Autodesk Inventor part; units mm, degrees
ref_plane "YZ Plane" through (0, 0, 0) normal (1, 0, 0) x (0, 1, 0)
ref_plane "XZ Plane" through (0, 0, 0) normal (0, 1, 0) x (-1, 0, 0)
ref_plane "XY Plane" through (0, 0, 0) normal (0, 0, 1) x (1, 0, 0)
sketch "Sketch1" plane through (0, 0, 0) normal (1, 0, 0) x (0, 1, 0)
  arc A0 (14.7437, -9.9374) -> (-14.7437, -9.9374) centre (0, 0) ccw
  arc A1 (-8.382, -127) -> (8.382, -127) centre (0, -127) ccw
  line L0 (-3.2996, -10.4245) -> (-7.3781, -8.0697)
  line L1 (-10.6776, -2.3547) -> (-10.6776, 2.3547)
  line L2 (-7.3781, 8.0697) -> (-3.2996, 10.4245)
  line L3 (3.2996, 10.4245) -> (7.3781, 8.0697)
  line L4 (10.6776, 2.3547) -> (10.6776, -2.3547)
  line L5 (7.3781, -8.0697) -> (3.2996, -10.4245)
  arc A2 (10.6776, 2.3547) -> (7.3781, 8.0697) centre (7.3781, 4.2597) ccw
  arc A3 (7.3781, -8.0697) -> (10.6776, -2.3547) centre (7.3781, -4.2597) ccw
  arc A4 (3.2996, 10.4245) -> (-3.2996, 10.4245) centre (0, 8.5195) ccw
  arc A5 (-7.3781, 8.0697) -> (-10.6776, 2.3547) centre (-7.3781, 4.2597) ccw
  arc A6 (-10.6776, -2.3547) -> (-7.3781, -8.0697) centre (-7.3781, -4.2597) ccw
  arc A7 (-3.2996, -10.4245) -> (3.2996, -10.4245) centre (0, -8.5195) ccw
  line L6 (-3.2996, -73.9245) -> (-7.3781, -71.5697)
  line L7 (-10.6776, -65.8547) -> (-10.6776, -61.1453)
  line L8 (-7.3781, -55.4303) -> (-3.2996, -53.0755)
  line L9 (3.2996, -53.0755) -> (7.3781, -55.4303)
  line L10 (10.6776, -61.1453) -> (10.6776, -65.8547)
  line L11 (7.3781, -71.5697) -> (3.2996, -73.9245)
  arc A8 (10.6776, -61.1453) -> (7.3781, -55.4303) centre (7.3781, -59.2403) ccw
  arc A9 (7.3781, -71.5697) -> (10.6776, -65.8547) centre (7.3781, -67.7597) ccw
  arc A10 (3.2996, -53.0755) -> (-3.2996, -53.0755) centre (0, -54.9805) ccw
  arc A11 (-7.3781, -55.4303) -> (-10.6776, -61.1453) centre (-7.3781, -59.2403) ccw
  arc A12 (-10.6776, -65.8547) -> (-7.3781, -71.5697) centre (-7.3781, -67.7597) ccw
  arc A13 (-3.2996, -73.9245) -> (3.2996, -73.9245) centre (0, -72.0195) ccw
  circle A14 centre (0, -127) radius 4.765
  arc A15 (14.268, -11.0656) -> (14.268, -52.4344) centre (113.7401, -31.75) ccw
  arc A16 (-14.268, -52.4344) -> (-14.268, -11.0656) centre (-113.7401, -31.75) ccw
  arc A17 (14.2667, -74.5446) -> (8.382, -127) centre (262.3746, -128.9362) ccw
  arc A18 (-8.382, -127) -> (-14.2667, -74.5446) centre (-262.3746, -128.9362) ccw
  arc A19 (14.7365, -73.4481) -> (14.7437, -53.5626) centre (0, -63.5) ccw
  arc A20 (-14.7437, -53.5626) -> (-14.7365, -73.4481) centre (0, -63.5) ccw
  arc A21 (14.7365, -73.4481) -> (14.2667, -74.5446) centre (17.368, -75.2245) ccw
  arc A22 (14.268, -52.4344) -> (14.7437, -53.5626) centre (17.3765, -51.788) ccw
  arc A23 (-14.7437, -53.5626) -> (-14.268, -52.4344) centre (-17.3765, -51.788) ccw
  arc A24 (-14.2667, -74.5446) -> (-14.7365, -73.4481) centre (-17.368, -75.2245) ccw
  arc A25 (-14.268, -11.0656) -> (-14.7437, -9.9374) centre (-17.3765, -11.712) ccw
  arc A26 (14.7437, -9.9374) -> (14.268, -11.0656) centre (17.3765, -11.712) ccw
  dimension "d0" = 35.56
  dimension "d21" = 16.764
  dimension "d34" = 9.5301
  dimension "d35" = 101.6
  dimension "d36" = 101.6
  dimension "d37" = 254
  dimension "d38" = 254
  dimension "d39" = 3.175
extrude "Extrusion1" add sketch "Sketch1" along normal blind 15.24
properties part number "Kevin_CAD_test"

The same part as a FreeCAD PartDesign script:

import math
import FreeCAD as App
import Part
import Sketcher
Q = App.Units.Quantity

doc = App.newDocument("Part")
body = doc.addObject("PartDesign::Body", "Body")

sketch1 = body.newObject("Sketcher::SketchObject", "Sketch")
sketch1.AttachmentSupport = (doc.getObject("YZ_Plane"), [""])
sketch1.MapMode = "FlatFace"
sketch1.addGeometry(Part.ArcOfCircle(Part.Circle(App.Vector(17.4, -11.7, 0), App.Vector(0, 0, 1), 3.2), math.radians(146), math.radians(168)), False)
sketch1.addGeometry(Part.ArcOfCircle(Part.Circle(App.Vector(0, 0, 0), App.Vector(0, 0, 1), 17.8), math.radians(-34), math.radians(214)), False)
sketch1.addGeometry(Part.ArcOfCircle(Part.Circle(App.Vector(-17.4, -11.7, 0), App.Vector(0, 0, 1), 3.2), math.radians(12), math.radians(34)), False)
sketch1.addGeometry(Part.ArcOfCircle(Part.Circle(App.Vector(-113.7, -31.8, 0), App.Vector(0, 0, 1), 101.6), math.radians(-12), math.radians(12)), False)
sketch1.addGeometry(Part.ArcOfCircle(Part.Circle(App.Vector(-17.4, -51.8, 0), App.Vector(0, 0, 1), 3.2), math.radians(-34), math.radians(-12)), False)
sketch1.addGeometry(Part.ArcOfCircle(Part.Circle(App.Vector(0, -63.5, 0), App.Vector(0, 0, 1), 17.8), math.radians(146), math.radians(214)), False)
sketch1.addGeometry(Part.ArcOfCircle(Part.Circle(App.Vector(-17.4, -75.2, 0), App.Vector(0, 0, 1), 3.2), math.radians(12), math.radians(34)), False)
sketch1.addGeometry(Part.ArcOfCircle(Part.Circle(App.Vector(-262.4, -128.9, 0), App.Vector(0, 0, 1), 254), math.radians(0.44), math.radians(12.37)), False)
sketch1.addGeometry(Part.ArcOfCircle(Part.Circle(App.Vector(0, -127, 0), App.Vector(0, 0, 1), 8.4), math.radians(180), math.radians(360)), False)
sketch1.addGeometry(Part.ArcOfCircle(Part.Circle(App.Vector(262.4, -128.9, 0), App.Vector(0, 0, 1), 254), math.radians(167.63), math.radians(179.56)), False)
sketch1.addGeometry(Part.ArcOfCircle(Part.Circle(App.Vector(17.4, -75.2, 0), App.Vector(0, 0, 1), 3.2), math.radians(146), math.radians(168)), False)
sketch1.addGeometry(Part.ArcOfCircle(Part.Circle(App.Vector(0, -63.5, 0), App.Vector(0, 0, 1), 17.8), math.radians(-34), math.radians(34)), False)
sketch1.addGeometry(Part.ArcOfCircle(Part.Circle(App.Vector(17.4, -51.8, 0), App.Vector(0, 0, 1), 3.2), math.radians(-168), math.radians(-146)), False)
sketch1.addGeometry(Part.ArcOfCircle(Part.Circle(App.Vector(113.7, -31.8, 0), App.Vector(0, 0, 1), 101.6), math.radians(168), math.radians(192)), False)
sketch1.addGeometry(Part.Circle(App.Vector(0, -127, 0), App.Vector(0, 0, 1), 4.8), False)
sketch1.addGeometry(Part.ArcOfCircle(Part.Circle(App.Vector(0, -72, 0), App.Vector(0, 0, 1), 3.8), math.radians(-150), math.radians(-30)), False)
sketch1.addGeometry(Part.LineSegment(App.Vector(-3.3, -73.9, 0), App.Vector(-7.4, -71.6, 0)), False)
sketch1.addGeometry(Part.ArcOfCircle(Part.Circle(App.Vector(-7.4, -67.8, 0), App.Vector(0, 0, 1), 3.8), math.radians(150), math.radians(270)), False)
sketch1.addGeometry(Part.LineSegment(App.Vector(-10.7, -65.9, 0), App.Vector(-10.7, -61.1, 0)), False)
sketch1.addGeometry(Part.ArcOfCircle(Part.Circle(App.Vector(-7.4, -59.2, 0), App.Vector(0, 0, 1), 3.8), math.radians(90), math.radians(210)), False)
sketch1.addGeometry(Part.LineSegment(App.Vector(-7.4, -55.4, 0), App.Vector(-3.3, -53.1, 0)), False)
sketch1.addGeometry(Part.ArcOfCircle(Part.Circle(App.Vector(0, -55, 0), App.Vector(0, 0, 1), 3.8), math.radians(30), math.radians(150)), False)
sketch1.addGeometry(Part.LineSegment(App.Vector(3.3, -53.1, 0), App.Vector(7.4, -55.4, 0)), False)
sketch1.addGeometry(Part.ArcOfCircle(Part.Circle(App.Vector(7.4, -59.2, 0), App.Vector(0, 0, 1), 3.8), math.radians(-30), math.radians(90)), False)
sketch1.addGeometry(Part.LineSegment(App.Vector(10.7, -61.1, 0), App.Vector(10.7, -65.9, 0)), False)
sketch1.addGeometry(Part.ArcOfCircle(Part.Circle(App.Vector(7.4, -67.8, 0), App.Vector(0, 0, 1), 3.8), math.radians(-90), math.radians(30)), False)
sketch1.addGeometry(Part.LineSegment(App.Vector(7.4, -71.6, 0), App.Vector(3.3, -73.9, 0)), False)
sketch1.addGeometry(Part.ArcOfCircle(Part.Circle(App.Vector(0, -8.5, 0), App.Vector(0, 0, 1), 3.8), math.radians(-150), math.radians(-30)), False)
sketch1.addGeometry(Part.LineSegment(App.Vector(-3.3, -10.4, 0), App.Vector(-7.4, -8.1, 0)), False)
sketch1.addGeometry(Part.ArcOfCircle(Part.Circle(App.Vector(-7.4, -4.3, 0), App.Vector(0, 0, 1), 3.8), math.radians(150), math.radians(270)), False)
sketch1.addGeometry(Part.LineSegment(App.Vector(-10.7, -2.4, 0), App.Vector(-10.7, 2.4, 0)), False)
sketch1.addGeometry(Part.ArcOfCircle(Part.Circle(App.Vector(-7.4, 4.3, 0), App.Vector(0, 0, 1), 3.8), math.radians(90), math.radians(210)), False)
sketch1.addGeometry(Part.LineSegment(App.Vector(-7.4, 8.1, 0), App.Vector(-3.3, 10.4, 0)), False)
sketch1.addGeometry(Part.ArcOfCircle(Part.Circle(App.Vector(0, 8.5, 0), App.Vector(0, 0, 1), 3.8), math.radians(30), math.radians(150)), False)
sketch1.addGeometry(Part.LineSegment(App.Vector(3.3, 10.4, 0), App.Vector(7.4, 8.1, 0)), False)
sketch1.addGeometry(Part.ArcOfCircle(Part.Circle(App.Vector(7.4, 4.3, 0), App.Vector(0, 0, 1), 3.8), math.radians(-30), math.radians(90)), False)
sketch1.addGeometry(Part.LineSegment(App.Vector(10.7, 2.4, 0), App.Vector(10.7, -2.4, 0)), False)
sketch1.addGeometry(Part.ArcOfCircle(Part.Circle(App.Vector(7.4, -4.3, 0), App.Vector(0, 0, 1), 3.8), math.radians(-90), math.radians(30)), False)
sketch1.addGeometry(Part.LineSegment(App.Vector(7.4, -8.1, 0), App.Vector(3.3, -10.4, 0)), False)
sketch1.addConstraint(Sketcher.Constraint("Tangent", 0, 1, 1, 1))
sketch1.addConstraint(Sketcher.Constraint("Tangent", 1, 2, 2, 2))
sketch1.addConstraint(Sketcher.Constraint("Tangent", 2, 1, 3, 2))
sketch1.addConstraint(Sketcher.Constraint("Tangent", 3, 1, 4, 2))
sketch1.addConstraint(Sketcher.Constraint("Tangent", 4, 1, 5, 1))
sketch1.addConstraint(Sketcher.Constraint("Tangent", 5, 2, 6, 2))
sketch1.addConstraint(Sketcher.Constraint("Tangent", 6, 1, 7, 2))
sketch1.addConstraint(Sketcher.Constraint("Coincident", 7, 1, 8, 1))
sketch1.addConstraint(Sketcher.Constraint("Coincident", 8, 2, 9, 2))
sketch1.addConstraint(Sketcher.Constraint("Tangent", 9, 1, 10, 2))
sketch1.addConstraint(Sketcher.Constraint("Tangent", 10, 1, 11, 1))
sketch1.addConstraint(Sketcher.Constraint("Tangent", 11, 2, 12, 2))
sketch1.addConstraint(Sketcher.Constraint("Tangent", 12, 1, 13, 2))
sketch1.addConstraint(Sketcher.Constraint("Tangent", 13, 1, 0, 2))
sketch1.addConstraint(Sketcher.Constraint("Coincident", 15, 1, 16, 1))
sketch1.addConstraint(Sketcher.Constraint("Coincident", 16, 2, 17, 2))
sketch1.addConstraint(Sketcher.Constraint("Coincident", 17, 1, 18, 1))
sketch1.addConstraint(Sketcher.Constraint("Coincident", 18, 2, 19, 2))
sketch1.addConstraint(Sketcher.Constraint("Coincident", 19, 1, 20, 1))
sketch1.addConstraint(Sketcher.Constraint("Coincident", 20, 2, 21, 2))
sketch1.addConstraint(Sketcher.Constraint("Coincident", 21, 1, 22, 1))
sketch1.addConstraint(Sketcher.Constraint("Coincident", 22, 2, 23, 2))
sketch1.addConstraint(Sketcher.Constraint("Coincident", 23, 1, 24, 1))
sketch1.addConstraint(Sketcher.Constraint("Coincident", 24, 2, 25, 2))
sketch1.addConstraint(Sketcher.Constraint("Coincident", 25, 1, 26, 1))
sketch1.addConstraint(Sketcher.Constraint("Coincident", 26, 2, 15, 2))
sketch1.addConstraint(Sketcher.Constraint("Coincident", 27, 1, 28, 1))
sketch1.addConstraint(Sketcher.Constraint("Coincident", 28, 2, 29, 2))
sketch1.addConstraint(Sketcher.Constraint("Coincident", 29, 1, 30, 1))
sketch1.addConstraint(Sketcher.Constraint("Coincident", 30, 2, 31, 2))
sketch1.addConstraint(Sketcher.Constraint("Coincident", 31, 1, 32, 1))
sketch1.addConstraint(Sketcher.Constraint("Coincident", 32, 2, 33, 2))
sketch1.addConstraint(Sketcher.Constraint("Coincident", 33, 1, 34, 1))
sketch1.addConstraint(Sketcher.Constraint("Coincident", 34, 2, 35, 2))
sketch1.addConstraint(Sketcher.Constraint("Coincident", 35, 1, 36, 1))
sketch1.addConstraint(Sketcher.Constraint("Coincident", 36, 2, 37, 2))
sketch1.addConstraint(Sketcher.Constraint("Coincident", 37, 1, 38, 1))
sketch1.addConstraint(Sketcher.Constraint("Coincident", 38, 2, 27, 2))
sketch1.addConstraint(Sketcher.Constraint("Vertical", 18))
sketch1.addConstraint(Sketcher.Constraint("Vertical", 24))
sketch1.addConstraint(Sketcher.Constraint("Vertical", 30))
sketch1.addConstraint(Sketcher.Constraint("Vertical", 36))
sketch1.addConstraint(Sketcher.Constraint("Coincident", 1, 3, -1, 1))
sketch1.addConstraint(Sketcher.Constraint("Coincident", 11, 3, 5, 3))
sketch1.addConstraint(Sketcher.Constraint("Coincident", 14, 3, 8, 3))
sketch1.addConstraint(Sketcher.Constraint("Equal", 0, 2))
sketch1.addConstraint(Sketcher.Constraint("Equal", 2, 4))
sketch1.addConstraint(Sketcher.Constraint("Equal", 1, 5))
sketch1.addConstraint(Sketcher.Constraint("Equal", 4, 6))
sketch1.addConstraint(Sketcher.Constraint("Equal", 6, 10))
sketch1.addConstraint(Sketcher.Constraint("Equal", 5, 11))
sketch1.addConstraint(Sketcher.Constraint("Equal", 10, 12))
sketch1.addConstraint(Sketcher.Constraint("Equal", 3, 13))
sketch1.addConstraint(Sketcher.Constraint("Equal", 15, 17))
sketch1.addConstraint(Sketcher.Constraint("Equal", 17, 19))
sketch1.addConstraint(Sketcher.Constraint("Equal", 19, 21))
sketch1.addConstraint(Sketcher.Constraint("Equal", 21, 23))
sketch1.addConstraint(Sketcher.Constraint("Equal", 23, 25))
sketch1.addConstraint(Sketcher.Constraint("Equal", 25, 27))
sketch1.addConstraint(Sketcher.Constraint("Equal", 27, 29))
sketch1.addConstraint(Sketcher.Constraint("Equal", 29, 31))
sketch1.addConstraint(Sketcher.Constraint("Equal", 31, 33))
sketch1.addConstraint(Sketcher.Constraint("Equal", 33, 35))
sketch1.addConstraint(Sketcher.Constraint("Equal", 35, 37))
sketch1.addConstraint(Sketcher.Constraint("Symmetric", 27, 3, 33, 3, -1, 1))
sketch1.addConstraint(Sketcher.Constraint("Symmetric", 29, 3, 35, 3, -1, 1))
sketch1.addConstraint(Sketcher.Constraint("Symmetric", 31, 3, 37, 3, -1, 1))
sketch1.addConstraint(Sketcher.Constraint("Symmetric", 6, 3, 10, 3, -2))
sketch1.addConstraint(Sketcher.Constraint("Symmetric", 3, 3, 13, 3, -2))
sketch1.addConstraint(Sketcher.Constraint("Symmetric", 19, 3, 23, 3, -2))
sketch1.addConstraint(Sketcher.Constraint("Symmetric", 17, 3, 25, 3, -2))
sketch1.addConstraint(Sketcher.Constraint("Symmetric", 31, 3, 35, 3, -2))
sketch1.addConstraint(Sketcher.Constraint("Symmetric", 7, 1, 8, 2, -2))
sketch1.addConstraint(Sketcher.Constraint("Symmetric", 20, 2, 21, 1, -2))
sketch1.addConstraint(Sketcher.Constraint("Symmetric", 15, 1, 26, 2, -2))
sketch1.addConstraint(Sketcher.Constraint("Symmetric", 32, 2, 33, 1, -2))
sketch1.addConstraint(Sketcher.Constraint("Parallel", 16, 22))
sketch1.addConstraint(Sketcher.Constraint("Parallel", 20, 26))
sketch1.addConstraint(Sketcher.Constraint("Parallel", 22, 28))
sketch1.addConstraint(Sketcher.Constraint("Parallel", 26, 32))
sketch1.addConstraint(Sketcher.Constraint("Parallel", 28, 34))
sketch1.addConstraint(Sketcher.Constraint("Parallel", 32, 38))
sketch1.addConstraint(Sketcher.Constraint("Horizontal", 14, 3, 7, 1))
sketch1.addConstraint(Sketcher.Constraint("Horizontal", 18, 2, 23, 1))
sketch1.addConstraint(Sketcher.Constraint("Horizontal", 30, 2, 35, 1))
sketch1.addConstraint(Sketcher.Constraint("Horizontal", 27, 1, 38, 2))
sketch1.addConstraint(Sketcher.Constraint("Vertical", 2, 3, 4, 3))
sketch1.addConstraint(Sketcher.Constraint("Vertical", 17, 3, 19, 3))
sketch1.addConstraint(Sketcher.Constraint("Vertical", 19, 3, 29, 3))
sketch1.addConstraint(Sketcher.Constraint("Vertical", 31, 3, 16, 2))
sketch1.addConstraint(Sketcher.Constraint("Vertical", 16, 2, 19, 1))
sketch1.addConstraint(Sketcher.Constraint("Vertical", 15, 1, 20, 2))
sketch1.addConstraint(Sketcher.Constraint("Vertical", 37, 3, 22, 2))
sketch1.addConstraint(Sketcher.Constraint("Vertical", 20, 2, 27, 1))
sketch1.addConstraint(Sketcher.Constraint("Vertical", 19, 1, 28, 2))
sketch1.addConstraint(Sketcher.Constraint("Vertical", 18, 2, 29, 1))
sketch1.addConstraint(Sketcher.Constraint("Vertical", 28, 2, 31, 1))
sketch1.addConstraint(Sketcher.Constraint("Equal", 24, 30))
sketch1.addConstraint(Sketcher.Constraint("Radius", 3, Q("4 in")))
sketch1.addConstraint(Sketcher.Constraint("Radius", 1, Q("0.7 in")))
sketch1.addConstraint(Sketcher.Constraint("Radius", 8, Q("0.33 in")))
sketch1.addConstraint(Sketcher.Constraint("Radius", 0, Q("0.125 in")))
sketch1.addConstraint(Sketcher.Constraint("Diameter", 14, Q("0.3752 in")))
sketch1.addConstraint(Sketcher.Constraint("Radius", 15, Q("0.15 in")))
sketch1.addConstraint(Sketcher.Constraint("DistanceY", 8, 3, -1, 1, Q("5 in")))
sketch1.addConstraint(Sketcher.Constraint("Angle", 16, Q("149.9992 deg")))
sketch1.addConstraint(Sketcher.Constraint("DistanceY", 5, 3, -1, 1, Q("2.5 in")))
sketch1.addConstraint(Sketcher.Constraint("Radius", 7, Q("9.9999 in")))
sketch1.addConstraint(Sketcher.Constraint("Radius", 9, Q("10.0001 in")))
sketch1.addConstraint(Sketcher.Constraint("DistanceY", 18, 1, 18, 2, Q("0.1854 in")))
sketch1.addConstraint(Sketcher.Constraint("DistanceY", 0, 3, -1, 1, Q("0.4611 in")))
sketch1.addConstraint(Sketcher.Constraint("DistanceY", 6, 3, -1, 1, Q("2.9616 in")))
sketch1.addConstraint(Sketcher.Constraint("DistanceY", 17, 3, -1, 1, Q("2.6677 in")))
sketch1.addConstraint(Sketcher.Constraint("DistanceY", 19, 3, -1, 1, Q("2.3323 in")))
sketch1.addConstraint(Sketcher.Constraint("DistanceX", 15, 1, -1, 1, Q("0.1299 in")))
sketch1.addConstraint(Sketcher.Constraint("Distance", 16, 4.7095))
pad1 = body.newObject("PartDesign::Pad", "Pad")
pad1.Profile = sketch1
pad1.Length = Q("0.6 in")

doc.recompute()
